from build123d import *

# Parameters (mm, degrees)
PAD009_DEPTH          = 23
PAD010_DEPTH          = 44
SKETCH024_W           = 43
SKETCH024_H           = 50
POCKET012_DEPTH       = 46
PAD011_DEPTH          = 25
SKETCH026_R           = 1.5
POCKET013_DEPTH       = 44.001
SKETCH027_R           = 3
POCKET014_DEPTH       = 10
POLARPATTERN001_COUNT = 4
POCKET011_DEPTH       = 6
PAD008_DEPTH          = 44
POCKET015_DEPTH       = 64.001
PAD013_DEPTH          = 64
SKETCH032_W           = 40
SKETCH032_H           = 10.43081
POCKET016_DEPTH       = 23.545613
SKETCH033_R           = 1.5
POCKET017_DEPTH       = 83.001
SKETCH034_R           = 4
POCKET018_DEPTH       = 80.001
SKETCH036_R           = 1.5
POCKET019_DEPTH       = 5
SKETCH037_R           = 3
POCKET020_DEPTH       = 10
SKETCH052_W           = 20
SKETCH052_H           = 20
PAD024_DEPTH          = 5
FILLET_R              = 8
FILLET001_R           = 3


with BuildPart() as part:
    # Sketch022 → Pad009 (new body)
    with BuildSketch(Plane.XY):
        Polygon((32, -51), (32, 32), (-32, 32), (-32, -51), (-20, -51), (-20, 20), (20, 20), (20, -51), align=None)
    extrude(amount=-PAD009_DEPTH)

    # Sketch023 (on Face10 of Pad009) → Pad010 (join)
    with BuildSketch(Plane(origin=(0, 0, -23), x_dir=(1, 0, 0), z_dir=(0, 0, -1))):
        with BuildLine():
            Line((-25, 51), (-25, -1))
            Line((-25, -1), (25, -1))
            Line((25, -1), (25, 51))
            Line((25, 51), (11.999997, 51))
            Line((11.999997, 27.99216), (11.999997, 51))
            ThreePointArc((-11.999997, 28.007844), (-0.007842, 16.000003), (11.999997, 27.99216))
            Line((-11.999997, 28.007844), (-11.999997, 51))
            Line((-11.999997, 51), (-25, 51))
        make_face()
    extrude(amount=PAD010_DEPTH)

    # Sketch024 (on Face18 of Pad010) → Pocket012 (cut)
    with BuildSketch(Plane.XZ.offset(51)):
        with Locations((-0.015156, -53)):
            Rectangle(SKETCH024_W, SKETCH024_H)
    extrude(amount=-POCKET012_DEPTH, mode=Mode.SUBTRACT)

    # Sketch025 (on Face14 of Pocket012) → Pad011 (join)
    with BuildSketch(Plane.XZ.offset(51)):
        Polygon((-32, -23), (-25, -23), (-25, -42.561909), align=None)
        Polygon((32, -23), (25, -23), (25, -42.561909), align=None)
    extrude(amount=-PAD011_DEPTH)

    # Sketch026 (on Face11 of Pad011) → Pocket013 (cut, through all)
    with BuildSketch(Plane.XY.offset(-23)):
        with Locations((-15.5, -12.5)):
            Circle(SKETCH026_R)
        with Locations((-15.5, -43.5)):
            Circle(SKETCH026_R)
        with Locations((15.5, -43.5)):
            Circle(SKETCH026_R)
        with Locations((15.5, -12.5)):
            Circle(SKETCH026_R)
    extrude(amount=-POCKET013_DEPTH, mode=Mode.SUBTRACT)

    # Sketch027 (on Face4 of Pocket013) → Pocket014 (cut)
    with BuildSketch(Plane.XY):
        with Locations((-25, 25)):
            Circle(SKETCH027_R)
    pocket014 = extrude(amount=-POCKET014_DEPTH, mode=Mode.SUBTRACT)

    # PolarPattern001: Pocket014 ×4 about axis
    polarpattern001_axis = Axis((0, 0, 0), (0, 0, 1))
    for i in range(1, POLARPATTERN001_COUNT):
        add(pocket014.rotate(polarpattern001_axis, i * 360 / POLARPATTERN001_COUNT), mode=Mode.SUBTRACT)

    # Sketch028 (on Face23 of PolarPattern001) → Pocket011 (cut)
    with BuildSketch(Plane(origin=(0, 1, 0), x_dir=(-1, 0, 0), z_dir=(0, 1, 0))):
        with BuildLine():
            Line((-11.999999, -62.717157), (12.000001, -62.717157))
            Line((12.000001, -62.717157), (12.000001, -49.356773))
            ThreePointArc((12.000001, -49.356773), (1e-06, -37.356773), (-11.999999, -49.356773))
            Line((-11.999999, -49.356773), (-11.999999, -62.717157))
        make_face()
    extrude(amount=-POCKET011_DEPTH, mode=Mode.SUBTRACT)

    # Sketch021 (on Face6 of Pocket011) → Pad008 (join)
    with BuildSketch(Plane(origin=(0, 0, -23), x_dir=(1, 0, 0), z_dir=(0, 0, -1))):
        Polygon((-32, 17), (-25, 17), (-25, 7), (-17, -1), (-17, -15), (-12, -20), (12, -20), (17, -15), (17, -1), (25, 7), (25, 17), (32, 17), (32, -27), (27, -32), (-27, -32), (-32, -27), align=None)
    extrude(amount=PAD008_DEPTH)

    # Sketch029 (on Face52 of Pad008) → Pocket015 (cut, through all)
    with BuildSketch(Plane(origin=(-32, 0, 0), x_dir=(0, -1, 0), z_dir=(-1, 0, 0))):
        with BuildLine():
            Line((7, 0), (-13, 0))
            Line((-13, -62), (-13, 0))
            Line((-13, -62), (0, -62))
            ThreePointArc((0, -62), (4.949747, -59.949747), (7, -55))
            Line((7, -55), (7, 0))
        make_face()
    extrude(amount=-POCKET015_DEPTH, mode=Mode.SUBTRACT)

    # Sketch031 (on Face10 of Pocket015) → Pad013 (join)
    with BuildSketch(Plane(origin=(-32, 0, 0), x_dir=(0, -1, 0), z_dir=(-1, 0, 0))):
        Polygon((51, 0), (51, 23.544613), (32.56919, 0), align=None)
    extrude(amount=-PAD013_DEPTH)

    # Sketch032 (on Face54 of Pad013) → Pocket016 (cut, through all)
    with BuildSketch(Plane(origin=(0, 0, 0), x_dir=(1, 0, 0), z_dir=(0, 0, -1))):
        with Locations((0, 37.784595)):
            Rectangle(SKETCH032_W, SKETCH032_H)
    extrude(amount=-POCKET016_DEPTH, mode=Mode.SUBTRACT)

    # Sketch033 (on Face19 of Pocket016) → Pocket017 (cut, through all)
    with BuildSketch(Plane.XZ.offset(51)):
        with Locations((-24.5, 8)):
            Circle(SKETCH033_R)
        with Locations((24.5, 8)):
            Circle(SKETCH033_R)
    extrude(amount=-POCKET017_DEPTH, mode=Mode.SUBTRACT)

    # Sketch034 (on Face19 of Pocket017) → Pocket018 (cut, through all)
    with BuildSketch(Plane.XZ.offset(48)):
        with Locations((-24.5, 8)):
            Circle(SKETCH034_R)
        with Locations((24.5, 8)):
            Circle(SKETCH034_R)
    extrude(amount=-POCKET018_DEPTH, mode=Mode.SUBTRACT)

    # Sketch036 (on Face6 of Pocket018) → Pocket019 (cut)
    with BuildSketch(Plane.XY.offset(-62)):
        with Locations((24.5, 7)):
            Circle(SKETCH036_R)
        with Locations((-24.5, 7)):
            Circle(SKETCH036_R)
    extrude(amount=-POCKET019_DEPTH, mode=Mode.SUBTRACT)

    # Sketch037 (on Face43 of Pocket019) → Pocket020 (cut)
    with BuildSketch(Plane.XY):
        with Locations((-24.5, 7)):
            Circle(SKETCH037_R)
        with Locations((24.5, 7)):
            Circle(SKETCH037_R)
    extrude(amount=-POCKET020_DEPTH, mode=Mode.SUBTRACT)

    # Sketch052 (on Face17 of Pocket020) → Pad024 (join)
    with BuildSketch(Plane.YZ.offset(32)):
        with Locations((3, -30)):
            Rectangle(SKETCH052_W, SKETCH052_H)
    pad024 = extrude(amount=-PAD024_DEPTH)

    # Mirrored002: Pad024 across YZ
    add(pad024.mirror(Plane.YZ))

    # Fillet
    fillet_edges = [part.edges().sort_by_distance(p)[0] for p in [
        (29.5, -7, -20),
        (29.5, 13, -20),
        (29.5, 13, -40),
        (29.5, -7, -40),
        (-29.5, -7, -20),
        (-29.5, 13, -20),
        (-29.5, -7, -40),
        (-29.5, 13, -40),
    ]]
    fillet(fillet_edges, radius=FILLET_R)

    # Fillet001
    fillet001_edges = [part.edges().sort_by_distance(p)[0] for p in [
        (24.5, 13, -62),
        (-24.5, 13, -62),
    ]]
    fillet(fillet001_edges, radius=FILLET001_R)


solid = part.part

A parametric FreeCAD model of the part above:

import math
import FreeCAD as App
import Part
import Sketcher
from FreeCAD import Vector


def edges_at(feature, points):
    """Names of the edges that pass closest to the given points."""
    edges = feature.Shape.Edges
    near = lambda p: min(range(len(edges)), key=lambda i: edges[i].distToShape(Part.Vertex(*p))[0])
    return sorted({f"Edge{near(p) + 1}" for p in points})


def add_polygon(sketch, points):
    """Adds a closed chain of lines whose ends are joined by coincident constraints."""
    first, n = sketch.GeometryCount, len(points)
    for a, b in zip(points, points[1:] + points[:1]):
        sketch.addGeometry(Part.LineSegment(App.Vector(*a, 0), App.Vector(*b, 0)), False)
    for i in range(n):
        sketch.addConstraint(Sketcher.Constraint("Coincident", first + i, 2, first + (i + 1) % n, 1))

doc = App.newDocument("Part")
body = doc.addObject("PartDesign::Body", "Body")

sketch1 = doc.addObject("Sketcher::SketchObject", "Sketch")
body.addObject(sketch1)
sketch1.AttachmentSupport = (doc.XY_Plane, [""])
sketch1.MapMode = "FlatFace"
add_polygon(sketch1, [(32, -51), (32, 32), (-32, 32), (-32, -51), (-20, -51), (-20, 20), (20, 20), (20, -51)])
sketch1.addConstraint([
    Sketcher.Constraint("Vertical", 0),
    Sketcher.Constraint("Horizontal", 1),
    Sketcher.Constraint("Vertical", 2),
    Sketcher.Constraint("Horizontal", 3),
    Sketcher.Constraint("Vertical", 4),
    Sketcher.Constraint("Horizontal", 5),
    Sketcher.Constraint("Vertical", 6),
    Sketcher.Constraint("Horizontal", 7),
    Sketcher.Constraint("Symmetric", 3, 2, 6, 2, -2),
    Sketcher.Constraint("Equal", 3, 7),
    Sketcher.Constraint("DistanceX", 1, 2, 1, 1, 64.0),
    Sketcher.Constraint("DistanceX", 3, 1, 3, 2, 12.0),
    Sketcher.Constraint("DistanceY", 0, 1, 0, 2, 83.0),
    Sketcher.Constraint("DistanceY", 4, 1, 4, 2, 71.0),
    Sketcher.Constraint("DistanceY", -1, 1, 0, 2, 32.0),
])
pad1 = doc.addObject("PartDesign::Pad", "Pad")
body.addObject(pad1)
pad1.Profile = sketch1
pad1.Length = 23
pad1.Reversed = True

sketch2 = doc.addObject("Sketcher::SketchObject", "Sketch001")
body.addObject(sketch2)
sketch2.AttachmentSupport = (doc.XY_Plane, [""])
sketch2.MapMode = "FlatFace"
sketch2.AttachmentOffset = App.Placement(Vector(0, 0, -23), App.Rotation())
sketch2.addGeometry([
    Part.LineSegment(Vector(-25, -51, 0), Vector(-25, 1, 0)),
    Part.LineSegment(Vector(-25, 1, 0), Vector(25, 1, 0)),
    Part.LineSegment(Vector(25, 1, 0), Vector(25, -51, 0)),
    Part.LineSegment(Vector(25, -51, 0), Vector(12, -51, 0)),
    Part.LineSegment(Vector(12, -51, 0), Vector(12, -28, 0)),
    Part.ArcOfCircle(Part.Circle(Vector(0, -28, 0), Vector(0, 0, 1), 12), math.radians(0), math.radians(180)),
    Part.LineSegment(Vector(-12, -28, 0), Vector(-12, -51, 0)),
    Part.LineSegment(Vector(-12, -51, 0), Vector(-25, -51, 0)),
], False)
sketch2.addConstraint([
    Sketcher.Constraint("Coincident", 0, 2, 1, 1),
    Sketcher.Constraint("Coincident", 1, 2, 2, 1),
    Sketcher.Constraint("Coincident", 2, 2, 3, 1),
    Sketcher.Constraint("Coincident", 3, 2, 4, 1),
    Sketcher.Constraint("Coincident", 4, 2, 5, 1),
    Sketcher.Constraint("Coincident", 5, 2, 6, 1),
    Sketcher.Constraint("Coincident", 6, 2, 7, 1),
    Sketcher.Constraint("Coincident", 7, 2, 0, 1),
    Sketcher.Constraint("Vertical", 0),
    Sketcher.Constraint("Horizontal", 1),
    Sketcher.Constraint("Vertical", 2),
    Sketcher.Constraint("Horizontal", 3),
    Sketcher.Constraint("Vertical", 4),
    Sketcher.Constraint("Vertical", 6),
    Sketcher.Constraint("Horizontal", 7),
    Sketcher.Constraint("Symmetric", 3, 2, 6, 2, -2),
    Sketcher.Constraint("Equal", 3, 7),
    Sketcher.Constraint("Radius", 5, 12.0),
    Sketcher.Constraint("DistanceX", 1, 1, 1, 2, 50.0),
    Sketcher.Constraint("DistanceY", 0, 1, 0, 2, 52.0),
    Sketcher.Constraint("DistanceY", 5, 3, -1, 1, 28.0),
    Sketcher.Constraint("DistanceY", -1, 1, 0, 2, 1.0),
    Sketcher.Constraint("DistanceY", 4, 1, 4, 2, 23.00784),
    Sketcher.Constraint("DistanceY", 6, 2, 6, 1, 22.992156),
])
pad2 = doc.addObject("PartDesign::Pad", "Pad001")
body.addObject(pad2)
pad2.Profile = sketch2
pad2.Length = 44
pad2.Reversed = True

sketch3 = doc.addObject("Sketcher::SketchObject", "Sketch002")
body.addObject(sketch3)
sketch3.AttachmentSupport = (doc.XZ_Plane, [""])
sketch3.MapMode = "FlatFace"
sketch3.AttachmentOffset = App.Placement(Vector(0, 0, 51), App.Rotation())
add_polygon(sketch3, [(-22, -28), (-22, -78), (21, -78), (21, -28)])
sketch3.addConstraint([
    Sketcher.Constraint("Vertical", 0),
    Sketcher.Constraint("Horizontal", 1),
    Sketcher.Constraint("Vertical", 2),
    Sketcher.Constraint("Horizontal", 3),
    Sketcher.Constraint("DistanceX", 1, 1, 1, 2, 43.0),
    Sketcher.Constraint("DistanceY", 0, 2, 0, 1, 50.0),
    Sketcher.Constraint("DistanceY", 0, 2, -1, 1, 78.0),
    Sketcher.Constraint("DistanceX", 0, 2, -1, 1, 21.515156),
])
pocket1 = doc.addObject("PartDesign::Pocket", "Pocket")
body.addObject(pocket1)
pocket1.Profile = sketch3
pocket1.Length = 46

sketch4 = doc.addObject("Sketcher::SketchObject", "Sketch003")
body.addObject(sketch4)
sketch4.AttachmentSupport = (doc.XZ_Plane, [""])
sketch4.MapMode = "FlatFace"
sketch4.AttachmentOffset = App.Placement(Vector(0, 0, 51), App.Rotation())
add_polygon(sketch4, [(-25, -23), (-32, -23), (-25, -43)])
add_polygon(sketch4, [(32, -23), (25, -23), (25, -43)])
sketch4.addConstraint([
    Sketcher.Constraint("Horizontal", 0),
    Sketcher.Constraint("Vertical", 2),
    Sketcher.Constraint("Horizontal", 3),
    Sketcher.Constraint("Vertical", 4),
    Sketcher.Constraint("Symmetric", 2, 2, 3, 2, -2),
    Sketcher.Constraint("Horizontal", 1, 2, 4, 2),
    Sketcher.Constraint("Equal", 0, 3),
    Sketcher.Constraint("DistanceX", 0, 2, 0, 1, 7.0),
    Sketcher.Constraint("DistanceX", 0, 2, -1, 1, 32.0),
    Sketcher.Constraint("DistanceY", 0, 2, -1, 1, 23.0),
    Sketcher.Constraint("DistanceY", 2, 1, 2, 2, 19.561909),
])
pad3 = doc.addObject("PartDesign::Pad", "Pad002")
body.addObject(pad3)
pad3.Profile = sketch4
pad3.Length = 25
pad3.Reversed = True

sketch5 = doc.addObject("Sketcher::SketchObject", "Sketch004")
body.addObject(sketch5)
sketch5.AttachmentSupport = (doc.XY_Plane, [""])
sketch5.MapMode = "FlatFace"
sketch5.AttachmentOffset = App.Placement(Vector(0, 0, -23), App.Rotation())
sketch5.addGeometry([
    Part.Circle(Vector(-15.5, -12.5, 0), Vector(0, 0, 1), 1.5),
    Part.Circle(Vector(-15.5, -43.5, 0), Vector(0, 0, 1), 1.5),
    Part.Circle(Vector(15.5, -43.5, 0), Vector(0, 0, 1), 1.5),
    Part.Circle(Vector(15.5, -12.5, 0), Vector(0, 0, 1), 1.5),
], False)
sketch5.addConstraint([
    Sketcher.Constraint("Equal", 0, 1),
    Sketcher.Constraint("Equal", 1, 2),
    Sketcher.Constraint("Equal", 2, 3),
    Sketcher.Constraint("Symmetric", 1, 3, 2, 3, -2),
    Sketcher.Constraint("Symmetric", 0, 3, 3, 3, -2),
    Sketcher.Constraint("Vertical", 0, 3, 1, 3),
    Sketcher.Constraint("Diameter", 0, 3.0),
    Sketcher.Constraint("DistanceY", 1, 3, 0, 3, 31.0),
    Sketcher.Constraint("DistanceX", 1, 3, 2, 3, 31.0),
    Sketcher.Constraint("DistanceY", 0, 3, -1, 1, 12.5),
])
pocket2 = doc.addObject("PartDesign::Pocket", "Pocket001")
body.addObject(pocket2)
pocket2.Profile = sketch5
pocket2.Type = "ThroughAll"

sketch6 = doc.addObject("Sketcher::SketchObject", "Sketch005")
body.addObject(sketch6)
sketch6.AttachmentSupport = (doc.XY_Plane, [""])
sketch6.MapMode = "FlatFace"
sketch6.addGeometry(Part.Circle(Vector(-25, 25, 0), Vector(0, 0, 1), 3), False)
sketch6.addConstraint([
    Sketcher.Constraint("Diameter", 0, 6.0),
    Sketcher.Constraint("DistanceX", 0, 3, -1, 1, 25.0),
    Sketcher.Constraint("DistanceY", -1, 1, 0, 3, 25.0),
])
pocket3 = doc.addObject("PartDesign::Pocket", "Pocket002")
body.addObject(pocket3)
pocket3.Profile = sketch6
pocket3.Length = 10
doc.recompute()

polarpattern = doc.addObject("PartDesign::PolarPattern", "PolarPattern")
body.addObject(polarpattern)
polarpattern.Originals = [pocket3]
polarpattern.Axis = (doc.Z_Axis, [""])
polarpattern.Angle = 360
polarpattern.Occurrences = 4
body.Tip = polarpattern

sketch7 = doc.addObject("Sketcher::SketchObject", "Sketch006")
body.addObject(sketch7)
sketch7.AttachmentSupport = (doc.XZ_Plane, [""])
sketch7.MapMode = "FlatFace"
sketch7.AttachmentOffset = App.Placement(Vector(0, 0, -1), App.Rotation())
sketch7.addGeometry([
    Part.LineSegment(Vector(12, -63, 0), Vector(-12, -63, 0)),
    Part.LineSegment(Vector(-12, -63, 0), Vector(-12, -49, 0)),
    Part.ArcOfCircle(Part.Circle(Vector(0, -49, 0), Vector(0, 0, 1), 12), math.radians(0), math.radians(180)),
    Part.LineSegment(Vector(12, -49, 0), Vector(12, -63, 0)),
], False)
sketch7.addConstraint([
    Sketcher.Constraint("Coincident", 0, 2, 1, 1),
    Sketcher.Constraint("Tangent", 1, 2, 2, 2),
    Sketcher.Constraint("Tangent", 2, 1, 3, 1),
    Sketcher.Constraint("Coincident", 3, 2, 0, 1),
    Sketcher.Constraint("Horizontal", 0),
    Sketcher.Constraint("Vertical", 1),
    Sketcher.Constraint("Vertical", 3),
    Sketcher.Constraint("PointOnObject", 2, 3, -2),
    Sketcher.Constraint("Radius", 2, 12.0),
    Sketcher.Constraint("DistanceY", 1, 1, 1, 2, 13.360384),
    Sketcher.Constraint("DistanceY", 2, 3, -1, 1, 49.356773),
])
pocket4 = doc.addObject("PartDesign::Pocket", "Pocket003")
body.addObject(pocket4)
pocket4.Profile = sketch7
pocket4.Length = 6
pocket4.Reversed = True

sketch8 = doc.addObject("Sketcher::SketchObject", "Sketch007")
body.addObject(sketch8)
sketch8.AttachmentSupport = (doc.XY_Plane, [""])
sketch8.MapMode = "FlatFace"
sketch8.AttachmentOffset = App.Placement(Vector(0, 0, -23), App.Rotation())
add_polygon(sketch8, [(-25, -17), (-32, -17), (-32, 27), (-27, 32), (27, 32), (32, 27), (32, -17), (25, -17), (25, -7), (17, 1), (17, 15), (12, 20), (-12, 20), (-17, 15), (-17, 1), (-25, -7)])
sketch8.addConstraint([
    Sketcher.Constraint("Horizontal", 0),
    Sketcher.Constraint("Vertical", 1),
    Sketcher.Constraint("Horizontal", 3),
    Sketcher.Constraint("Vertical", 5),
    Sketcher.Constraint("Horizontal", 6),
    Sketcher.Constraint("Vertical", 7),
    Sketcher.Constraint("Vertical", 9),
    Sketcher.Constraint("Horizontal", 11),
    Sketcher.Constraint("Vertical", 13),
    Sketcher.Constraint("Vertical", 15),
    Sketcher.Constraint("Symmetric", 1, 2, 4, 2, -2),
    Sketcher.Constraint("Symmetric", 9, 2, 12, 2, -2),
    Sketcher.Constraint("Symmetric", 7, 2, 14, 2, -2),
    Sketcher.Constraint("Perpendicular", 2, 4),
    Sketcher.Constraint("Parallel", 4, 8),
    Sketcher.Constraint("Parallel", 8, 10),
    Sketcher.Constraint("Perpendicular", 10, 12),
    Sketcher.Constraint("Parallel", 12, 14),
    Sketcher.Constraint("Horizontal", 0, 2, 5, 2),
    Sketcher.Constraint("Horizontal", 8, 2, 13, 2),
    Sketcher.Constraint("Equal", 4, 10),
    Sketcher.Constraint("DistanceX", 0, 2, 0, 1, 7.0),
    Sketcher.Constraint("DistanceX", 3, 1, 3, 2, 54.0),
    Sketcher.Constraint("DistanceX", 11, 2, 11, 1, 24.0),
    Sketcher.Constraint("DistanceY", 1, 1, 1, 2, 44.0),
    Sketcher.Constraint("DistanceY", 7, 1, 7, 2, 10.0),
    Sketcher.Constraint("DistanceY", 9, 1, 9, 2, 14.0),
    Sketcher.Constraint("DistanceX", 0, 2, -1, 1, 32.0),
    Sketcher.Constraint("DistanceY", 0, 2, -1, 1, 17.0),
])
pad4 = doc.addObject("PartDesign::Pad", "Pad003")
body.addObject(pad4)
pad4.Profile = sketch8
pad4.Length = 44
pad4.Reversed = True

sketch9 = doc.addObject("Sketcher::SketchObject", "Sketch008")
body.addObject(sketch9)
sketch9.AttachmentSupport = (doc.YZ_Plane, [""])
sketch9.MapMode = "FlatFace"
sketch9.AttachmentOffset = App.Placement(Vector(0, 0, -32), App.Rotation())
sketch9.addGeometry([
    Part.LineSegment(Vector(-7, 0, 0), Vector(13, 0, 0)),
    Part.LineSegment(Vector(13, 0, 0), Vector(13, -62, 0)),
    Part.LineSegment(Vector(13, -62, 0), Vector(0, -62, 0)),
    Part.ArcOfCircle(Part.Circle(Vector(0, -55, 0), Vector(0, 0, 1), 7), math.radians(-180), math.radians(-90)),
    Part.LineSegment(Vector(-7, -55, 0), Vector(-7, 0, 0)),
], False)
sketch9.addConstraint([
    Sketcher.Constraint("Coincident", 0, 2, 1, 1),
    Sketcher.Constraint("Coincident", 1, 2, 2, 1),
    Sketcher.Constraint("Tangent", 2, 2, 3, 2),
    Sketcher.Constraint("Tangent", 3, 1, 4, 1),
    Sketcher.Constraint("Coincident", 4, 2, 0, 1),
    Sketcher.Constraint("Horizontal", 0),
    Sketcher.Constraint("Vertical", 1),
    Sketcher.Constraint("Horizontal", 2),
    Sketcher.Constraint("Vertical", 4),
    Sketcher.Constraint("PointOnObject", 3, 3, -2),
    Sketcher.Constraint("PointOnObject", 0, 2, -1),
    Sketcher.Constraint("Radius", 3, 7.000002),
    Sketcher.Constraint("DistanceX", 0, 1, 0, 2, 20.0),
    Sketcher.Constraint("DistanceY", 1, 2, 1, 1, 62.0),
])
pocket5 = doc.addObject("PartDesign::Pocket", "Pocket004")
body.addObject(pocket5)
pocket5.Profile = sketch9
pocket5.Type = "ThroughAll"
pocket5.Reversed = True

sketch10 = doc.addObject("Sketcher::SketchObject", "Sketch009")
body.addObject(sketch10)
sketch10.AttachmentSupport = (doc.YZ_Plane, [""])
sketch10.MapMode = "FlatFace"
sketch10.AttachmentOffset = App.Placement(Vector(0, 0, -32), App.Rotation())
add_polygon(sketch10, [(-51, 0), (-51, 24), (-33, 0)])
sketch10.addConstraint([
    Sketcher.Constraint("Vertical", 0),
    Sketcher.Constraint("Horizontal", 2),
    Sketcher.Constraint("PointOnObject", 1, 2, -1),
    Sketcher.Constraint("DistanceX", 0, 2, -1, 1, 51.0),
    Sketcher.Constraint("DistanceX", 2, 2, 2, 1, 18.43081),
    Sketcher.Constraint("Distance", 1, 29.900561),
])
pad5 = doc.addObject("PartDesign::Pad", "Pad004")
body.addObject(pad5)
pad5.Profile = sketch10
pad5.Length = 64

sketch11 = doc.addObject("Sketcher::SketchObject", "Sketch010")
body.addObject(sketch11)
sketch11.AttachmentSupport = (doc.XY_Plane, [""])
sketch11.MapMode = "FlatFace"
add_polygon(sketch11, [(-20, -43), (-20, -33), (20, -33), (20, -43)])
sketch11.addConstraint([
    Sketcher.Constraint("Vertical", 0),
    Sketcher.Constraint("Horizontal", 1),
    Sketcher.Constraint("Vertical", 2),
    Sketcher.Constraint("Horizontal", 3),
    Sketcher.Constraint("DistanceX", 1, 1, 1, 2, 40.0),
    Sketcher.Constraint("DistanceX", 0, 2, -1, 1, 20.0),
    Sketcher.Constraint("DistanceY", 2, 2, -1, 1, 43.0),
    Sketcher.Constraint("DistanceY", 0, 1, 0, 2, 10.43081),
])
pocket6 = doc.addObject("PartDesign::Pocket", "Pocket005")
body.addObject(pocket6)
pocket6.Profile = sketch11
pocket6.Type = "ThroughAll"
pocket6.Reversed = True

sketch12 = doc.addObject("Sketcher::SketchObject", "Sketch011")
body.addObject(sketch12)
sketch12.AttachmentSupport = (doc.XZ_Plane, [""])
sketch12.MapMode = "FlatFace"
sketch12.AttachmentOffset = App.Placement(Vector(0, 0, 51), App.Rotation())
sketch12.addGeometry([
    Part.Circle(Vector(-24.5, 8, 0), Vector(0, 0, 1), 1.5),
    Part.Circle(Vector(24.5, 8, 0), Vector(0, 0, 1), 1.5),
], False)
sketch12.addConstraint([
    Sketcher.Constraint("Equal", 0, 1),
    Sketcher.Constraint("Symmetric", 0, 3, 1, 3, -2),
    Sketcher.Constraint("Diameter", 0, 3.0),
    Sketcher.Constraint("DistanceY", -1, 1, 0, 3, 8.0),
    Sketcher.Constraint("DistanceX", 0, 3, 1, 3, 49.0),
])
pocket7 = doc.addObject("PartDesign::Pocket", "Pocket006")
body.addObject(pocket7)
pocket7.Profile = sketch12
pocket7.Type = "ThroughAll"

sketch13 = doc.addObject("Sketcher::SketchObject", "Sketch012")
body.addObject(sketch13)
sketch13.AttachmentSupport = (doc.XZ_Plane, [""])
sketch13.MapMode = "FlatFace"
sketch13.AttachmentOffset = App.Placement(Vector(0, 0, 48), App.Rotation())
sketch13.addGeometry([
    Part.Circle(Vector(-24.5, 8, 0), Vector(0, 0, 1), 4),
    Part.Circle(Vector(24.5, 8, 0), Vector(0, 0, 1), 4),
], False)
sketch13.addConstraint([
    Sketcher.Constraint("Equal", 0, 1),
    Sketcher.Constraint("Symmetric", 0, 3, 1, 3, -2),
    Sketcher.Constraint("Diameter", 0, 8.0),
    Sketcher.Constraint("DistanceY", -1, 1, 0, 3, 8.0),
    Sketcher.Constraint("DistanceX", 0, 3, 1, 3, 49.0),
])
pocket8 = doc.addObject("PartDesign::Pocket", "Pocket007")
body.addObject(pocket8)
pocket8.Profile = sketch13
pocket8.Type = "ThroughAll"

sketch14 = doc.addObject("Sketcher::SketchObject", "Sketch013")
body.addObject(sketch14)
sketch14.AttachmentSupport = (doc.XY_Plane, [""])
sketch14.MapMode = "FlatFace"
sketch14.AttachmentOffset = App.Placement(Vector(0, 0, -62), App.Rotation())
sketch14.addGeometry([
    Part.Circle(Vector(24.5, 7, 0), Vector(0, 0, 1), 1.5),
    Part.Circle(Vector(-24.5, 7, 0), Vector(0, 0, 1), 1.5),
], False)
sketch14.addConstraint([
    Sketcher.Constraint("Equal", 0, 1),
    Sketcher.Constraint("Symmetric", 0, 3, 1, 3, -2),
    Sketcher.Constraint("Diameter", 0, 3.0),
    Sketcher.Constraint("DistanceY", -1, 1, 0, 3, 7.0),
    Sketcher.Constraint("DistanceX", 1, 3, 0, 3, 49.0),
])
pocket9 = doc.addObject("PartDesign::Pocket", "Pocket008")
body.addObject(pocket9)
pocket9.Profile = sketch14
pocket9.Length = 5

sketch15 = doc.addObject("Sketcher::SketchObject", "Sketch014")
body.addObject(sketch15)
sketch15.AttachmentSupport = (doc.XY_Plane, [""])
sketch15.MapMode = "FlatFace"
sketch15.addGeometry([
    Part.Circle(Vector(-24.5, 7, 0), Vector(0, 0, 1), 3),
    Part.Circle(Vector(24.5, 7, 0), Vector(0, 0, 1), 3),
], False)
sketch15.addConstraint([
    Sketcher.Constraint("Equal", 0, 1),
    Sketcher.Constraint("Symmetric", 0, 3, 1, 3, -2),
    Sketcher.Constraint("Diameter", 0, 6.0),
    Sketcher.Constraint("DistanceY", -1, 1, 0, 3, 7.0),
    Sketcher.Constraint("DistanceX", 0, 3, 1, 3, 49.0),
])
pocket10 = doc.addObject("PartDesign::Pocket", "Pocket009")
body.addObject(pocket10)
pocket10.Profile = sketch15
pocket10.Length = 10

sketch16 = doc.addObject("Sketcher::SketchObject", "Sketch015")
body.addObject(sketch16)
sketch16.AttachmentSupport = (doc.YZ_Plane, [""])
sketch16.MapMode = "FlatFace"
sketch16.AttachmentOffset = App.Placement(Vector(0, 0, 32), App.Rotation())
add_polygon(sketch16, [(-7, -20), (-7, -40), (13, -40), (13, -20)])
sketch16.addConstraint([
    Sketcher.Constraint("Vertical", 0),
    Sketcher.Constraint("Horizontal", 1),
    Sketcher.Constraint("Vertical", 2),
    Sketcher.Constraint("Horizontal", 3),
    Sketcher.Constraint("Equal", 3, 0),
    Sketcher.Constraint("DistanceX", 1, 1, 1, 2, 20.0),
    Sketcher.Constraint("DistanceX", 0, 2, -1, 1, 7.0),
    Sketcher.Constraint("DistanceY", 0, 2, -1, 1, 40.0),
])
pad6 = doc.addObject("PartDesign::Pad", "Pad005")
body.addObject(pad6)
pad6.Profile = sketch16
pad6.Length = 5
pad6.Reversed = True
doc.recompute()

mirrored = doc.addObject("PartDesign::Mirrored", "Mirrored")
body.addObject(mirrored)
mirrored.Originals = [pad6]
mirrored.MirrorPlane = (doc.YZ_Plane, [""])
body.Tip = mirrored
doc.recompute()

fillet = doc.addObject("PartDesign::Fillet", "Fillet")
body.addObject(fillet)
fillet.Base = (mirrored, edges_at(mirrored, [
    (29.5, -7, -20),
    (29.5, 13, -20),
    (29.5, 13, -40),
    (29.5, -7, -40),
    (-29.5, -7, -20),
    (-29.5, 13, -20),
    (-29.5, -7, -40),
    (-29.5, 13, -40),
]))
fillet.Radius = 8
doc.recompute()

fillet2 = doc.addObject("PartDesign::Fillet", "Fillet001")
body.addObject(fillet2)
fillet2.Base = (fillet, edges_at(fillet, [(24.5, 13, -62), (-24.5, 13, -62)]))
fillet2.Radius = 3

doc.recompute()
